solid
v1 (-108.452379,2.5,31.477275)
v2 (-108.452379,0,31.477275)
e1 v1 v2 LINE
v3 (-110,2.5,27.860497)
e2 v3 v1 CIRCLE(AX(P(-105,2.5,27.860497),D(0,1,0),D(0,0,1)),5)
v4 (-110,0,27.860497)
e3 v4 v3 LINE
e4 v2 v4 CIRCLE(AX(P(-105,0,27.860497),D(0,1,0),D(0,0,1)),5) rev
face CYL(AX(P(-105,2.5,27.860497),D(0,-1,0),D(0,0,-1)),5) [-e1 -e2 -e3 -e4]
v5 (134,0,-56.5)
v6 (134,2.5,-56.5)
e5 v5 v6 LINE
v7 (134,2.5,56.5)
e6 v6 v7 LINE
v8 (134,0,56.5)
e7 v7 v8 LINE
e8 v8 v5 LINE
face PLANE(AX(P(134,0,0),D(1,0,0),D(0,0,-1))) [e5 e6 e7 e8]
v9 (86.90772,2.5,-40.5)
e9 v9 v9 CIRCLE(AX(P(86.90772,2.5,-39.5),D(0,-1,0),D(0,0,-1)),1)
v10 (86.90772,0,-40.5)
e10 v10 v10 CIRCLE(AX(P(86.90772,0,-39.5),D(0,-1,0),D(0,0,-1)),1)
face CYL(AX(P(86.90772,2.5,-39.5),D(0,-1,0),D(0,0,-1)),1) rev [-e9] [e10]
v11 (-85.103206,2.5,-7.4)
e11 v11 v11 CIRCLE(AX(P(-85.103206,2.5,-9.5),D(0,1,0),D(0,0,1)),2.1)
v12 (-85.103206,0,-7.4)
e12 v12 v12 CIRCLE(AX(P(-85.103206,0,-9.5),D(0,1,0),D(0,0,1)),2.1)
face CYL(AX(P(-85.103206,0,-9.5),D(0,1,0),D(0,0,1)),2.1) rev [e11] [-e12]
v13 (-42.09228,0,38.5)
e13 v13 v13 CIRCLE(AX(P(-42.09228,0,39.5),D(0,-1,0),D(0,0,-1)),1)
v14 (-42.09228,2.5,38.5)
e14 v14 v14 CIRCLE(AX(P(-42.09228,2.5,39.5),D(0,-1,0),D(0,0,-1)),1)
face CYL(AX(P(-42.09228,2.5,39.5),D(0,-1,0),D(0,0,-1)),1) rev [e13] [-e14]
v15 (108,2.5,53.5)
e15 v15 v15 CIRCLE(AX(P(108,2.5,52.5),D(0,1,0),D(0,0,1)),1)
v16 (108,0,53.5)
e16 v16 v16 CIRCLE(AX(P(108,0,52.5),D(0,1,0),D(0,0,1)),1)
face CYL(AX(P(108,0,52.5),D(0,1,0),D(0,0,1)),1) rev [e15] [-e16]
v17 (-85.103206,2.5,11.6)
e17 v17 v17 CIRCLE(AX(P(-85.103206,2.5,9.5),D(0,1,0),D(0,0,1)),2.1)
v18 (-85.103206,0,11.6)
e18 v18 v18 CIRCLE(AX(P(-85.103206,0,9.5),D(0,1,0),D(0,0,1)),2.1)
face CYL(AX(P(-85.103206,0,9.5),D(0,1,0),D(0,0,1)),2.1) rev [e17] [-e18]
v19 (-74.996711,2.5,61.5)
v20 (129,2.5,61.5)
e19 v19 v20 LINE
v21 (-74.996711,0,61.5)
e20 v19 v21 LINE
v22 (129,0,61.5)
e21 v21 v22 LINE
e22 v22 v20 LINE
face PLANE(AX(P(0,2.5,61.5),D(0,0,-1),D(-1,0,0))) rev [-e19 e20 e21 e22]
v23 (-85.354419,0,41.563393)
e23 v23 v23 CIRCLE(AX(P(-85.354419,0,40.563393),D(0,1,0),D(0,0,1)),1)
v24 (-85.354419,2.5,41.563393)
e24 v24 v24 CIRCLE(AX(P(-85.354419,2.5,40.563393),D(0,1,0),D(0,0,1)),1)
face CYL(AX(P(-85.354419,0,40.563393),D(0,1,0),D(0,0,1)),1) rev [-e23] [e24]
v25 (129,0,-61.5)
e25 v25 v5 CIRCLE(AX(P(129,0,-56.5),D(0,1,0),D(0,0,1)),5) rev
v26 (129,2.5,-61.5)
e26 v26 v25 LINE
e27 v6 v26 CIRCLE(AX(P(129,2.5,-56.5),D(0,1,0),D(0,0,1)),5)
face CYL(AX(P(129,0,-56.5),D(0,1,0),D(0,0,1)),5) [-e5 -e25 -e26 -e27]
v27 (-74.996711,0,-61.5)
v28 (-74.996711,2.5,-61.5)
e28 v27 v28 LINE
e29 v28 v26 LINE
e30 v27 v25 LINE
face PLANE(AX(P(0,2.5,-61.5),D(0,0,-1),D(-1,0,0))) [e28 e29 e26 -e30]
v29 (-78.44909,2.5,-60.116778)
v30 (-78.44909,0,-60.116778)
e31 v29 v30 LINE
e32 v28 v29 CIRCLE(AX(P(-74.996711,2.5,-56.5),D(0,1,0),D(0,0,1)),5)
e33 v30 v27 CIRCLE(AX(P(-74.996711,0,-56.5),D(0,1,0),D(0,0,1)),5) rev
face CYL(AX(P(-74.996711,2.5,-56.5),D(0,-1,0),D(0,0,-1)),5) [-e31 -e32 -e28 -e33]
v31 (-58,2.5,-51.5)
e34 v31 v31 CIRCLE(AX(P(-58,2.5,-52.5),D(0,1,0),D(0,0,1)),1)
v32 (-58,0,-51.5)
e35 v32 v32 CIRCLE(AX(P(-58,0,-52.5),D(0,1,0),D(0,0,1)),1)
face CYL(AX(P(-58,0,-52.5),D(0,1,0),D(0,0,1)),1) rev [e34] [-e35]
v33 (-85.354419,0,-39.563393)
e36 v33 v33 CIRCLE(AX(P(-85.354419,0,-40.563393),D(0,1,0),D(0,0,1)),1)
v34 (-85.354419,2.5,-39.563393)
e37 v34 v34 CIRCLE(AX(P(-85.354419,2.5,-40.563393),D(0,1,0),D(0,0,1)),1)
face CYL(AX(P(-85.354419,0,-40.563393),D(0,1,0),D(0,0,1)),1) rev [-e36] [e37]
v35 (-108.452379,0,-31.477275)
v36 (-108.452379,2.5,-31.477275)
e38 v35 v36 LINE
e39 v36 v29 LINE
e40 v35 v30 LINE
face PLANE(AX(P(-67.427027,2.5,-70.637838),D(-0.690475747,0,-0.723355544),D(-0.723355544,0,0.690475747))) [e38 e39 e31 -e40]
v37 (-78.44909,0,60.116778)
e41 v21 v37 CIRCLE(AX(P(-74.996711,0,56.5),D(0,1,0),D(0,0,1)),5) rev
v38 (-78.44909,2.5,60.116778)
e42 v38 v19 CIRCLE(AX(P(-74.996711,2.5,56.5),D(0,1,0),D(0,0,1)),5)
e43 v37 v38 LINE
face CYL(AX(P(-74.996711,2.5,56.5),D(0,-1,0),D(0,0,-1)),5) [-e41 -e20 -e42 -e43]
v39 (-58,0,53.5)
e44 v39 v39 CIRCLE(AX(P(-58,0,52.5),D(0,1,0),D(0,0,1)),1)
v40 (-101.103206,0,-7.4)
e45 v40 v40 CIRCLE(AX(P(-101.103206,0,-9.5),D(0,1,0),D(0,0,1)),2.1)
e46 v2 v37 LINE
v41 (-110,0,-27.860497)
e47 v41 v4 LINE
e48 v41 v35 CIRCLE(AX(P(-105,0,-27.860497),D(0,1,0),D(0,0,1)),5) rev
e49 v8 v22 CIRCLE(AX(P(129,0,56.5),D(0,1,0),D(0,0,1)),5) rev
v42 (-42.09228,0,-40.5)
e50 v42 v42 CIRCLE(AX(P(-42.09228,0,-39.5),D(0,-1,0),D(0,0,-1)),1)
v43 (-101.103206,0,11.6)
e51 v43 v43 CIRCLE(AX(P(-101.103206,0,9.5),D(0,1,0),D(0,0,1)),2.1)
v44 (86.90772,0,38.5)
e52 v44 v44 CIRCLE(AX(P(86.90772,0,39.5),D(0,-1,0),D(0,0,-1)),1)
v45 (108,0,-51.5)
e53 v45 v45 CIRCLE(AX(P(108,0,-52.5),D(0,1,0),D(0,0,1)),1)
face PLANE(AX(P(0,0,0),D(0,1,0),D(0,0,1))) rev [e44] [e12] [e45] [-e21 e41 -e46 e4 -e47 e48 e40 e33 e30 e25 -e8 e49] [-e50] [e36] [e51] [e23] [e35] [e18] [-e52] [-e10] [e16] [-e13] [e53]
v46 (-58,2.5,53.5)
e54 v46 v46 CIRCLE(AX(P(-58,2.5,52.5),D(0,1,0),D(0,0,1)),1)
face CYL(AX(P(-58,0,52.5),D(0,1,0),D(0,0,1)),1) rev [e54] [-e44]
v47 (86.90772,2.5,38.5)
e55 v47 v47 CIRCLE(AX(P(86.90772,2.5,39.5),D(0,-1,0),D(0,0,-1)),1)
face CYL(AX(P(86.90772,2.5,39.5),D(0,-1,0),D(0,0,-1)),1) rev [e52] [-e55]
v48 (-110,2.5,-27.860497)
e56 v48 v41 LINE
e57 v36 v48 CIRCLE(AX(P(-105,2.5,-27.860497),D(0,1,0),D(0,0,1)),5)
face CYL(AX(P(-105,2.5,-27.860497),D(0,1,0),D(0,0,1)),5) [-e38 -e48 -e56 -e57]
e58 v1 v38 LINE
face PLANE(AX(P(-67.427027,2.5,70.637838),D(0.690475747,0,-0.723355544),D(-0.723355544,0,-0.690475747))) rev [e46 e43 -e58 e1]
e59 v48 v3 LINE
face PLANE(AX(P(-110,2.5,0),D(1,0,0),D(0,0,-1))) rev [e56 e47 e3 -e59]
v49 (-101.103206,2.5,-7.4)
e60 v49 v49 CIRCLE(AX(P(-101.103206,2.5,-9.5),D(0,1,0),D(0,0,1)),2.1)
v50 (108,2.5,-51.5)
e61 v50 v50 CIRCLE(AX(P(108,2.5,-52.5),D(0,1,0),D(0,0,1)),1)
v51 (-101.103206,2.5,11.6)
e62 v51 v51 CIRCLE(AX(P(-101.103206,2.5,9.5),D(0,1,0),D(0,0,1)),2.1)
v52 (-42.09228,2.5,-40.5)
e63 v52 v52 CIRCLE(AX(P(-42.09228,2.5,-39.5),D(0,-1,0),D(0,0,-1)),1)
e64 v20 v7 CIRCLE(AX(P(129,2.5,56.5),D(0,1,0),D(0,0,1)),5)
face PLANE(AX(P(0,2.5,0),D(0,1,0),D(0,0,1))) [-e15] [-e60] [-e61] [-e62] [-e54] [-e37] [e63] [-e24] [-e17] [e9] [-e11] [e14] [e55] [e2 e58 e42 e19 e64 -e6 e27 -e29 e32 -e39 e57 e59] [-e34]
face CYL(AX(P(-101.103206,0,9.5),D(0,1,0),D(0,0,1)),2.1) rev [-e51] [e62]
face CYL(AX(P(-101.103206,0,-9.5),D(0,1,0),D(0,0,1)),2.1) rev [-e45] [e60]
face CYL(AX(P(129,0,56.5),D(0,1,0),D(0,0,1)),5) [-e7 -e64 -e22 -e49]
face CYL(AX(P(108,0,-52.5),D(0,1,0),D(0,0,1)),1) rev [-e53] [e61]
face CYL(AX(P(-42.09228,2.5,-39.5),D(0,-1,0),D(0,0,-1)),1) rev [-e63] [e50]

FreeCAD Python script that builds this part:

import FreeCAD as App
import Part
import Sketcher
Q = App.Units.Quantity


def edges_at(feature, points):
    """Names of the edges that pass closest to the given points."""
    edges = feature.Shape.Edges
    near = lambda p: min(range(len(edges)), key=lambda i: edges[i].distToShape(Part.Vertex(*p))[0])
    return sorted({f"Edge{near(p) + 1}" for p in points})


def add_polygon(sketch, points):
    """Adds a closed chain of lines whose ends are joined by coincident constraints."""
    first, n = sketch.GeometryCount, len(points)
    for a, b in zip(points, points[1:] + points[:1]):
        sketch.addGeometry(Part.LineSegment(App.Vector(*a, 0), App.Vector(*b, 0)), False)
    for i in range(n):
        sketch.addConstraint(Sketcher.Constraint("Coincident", first + i, 2, first + (i + 1) % n, 1))

doc = App.newDocument("Part")
body = doc.addObject("PartDesign::Body", "Body")

# Sketch on XZ plane
sketch1 = body.newObject("Sketcher::SketchObject", "Sketch")
sketch1.AttachmentSupport = (doc.getObject("XZ_Plane"), [""])
sketch1.MapMode = "FlatFace"
add_polygon(sketch1, [(-77, -61.5), (-110, -30), (-110, 30), (-77, 61.5), (110, 61.5), (110, -61.5)])  # lines 0-5
sketch1.addConstraint(Sketcher.Constraint("Vertical", 1))
sketch1.addConstraint(Sketcher.Constraint("Horizontal", 3))
sketch1.addConstraint(Sketcher.Constraint("Vertical", 4))
sketch1.addConstraint(Sketcher.Constraint("Horizontal", 5))
sketch1.addConstraint(Sketcher.Constraint("Symmetric", 2, 2, 5, 2, -1))
sketch1.addConstraint(Sketcher.Constraint("Equal", 0, 2))
sketch1.addConstraint(Sketcher.Constraint("DistanceX", 3, 1, 3, 2, Q("187 mm")))
sketch1.addConstraint(Sketcher.Constraint("DistanceY", 1, 1, 1, 2, Q("60 mm")))
sketch1.addConstraint(Sketcher.Constraint("DistanceY", 4, 2, 4, 1, Q("123 mm")))
sketch1.addConstraint(Sketcher.Constraint("DistanceX", 0, 2, -1, 1, Q("110 mm")))
sketch1.addConstraint(Sketcher.Constraint("DistanceX", 2, 2, -1, 1, Q("77 mm")))
pad1 = body.newObject("PartDesign::Pad", "Pad")
pad1.Profile = sketch1
pad1.Length = 2.5
pad1.Reversed = True

# Sketch on XZ plane
sketch2 = body.newObject("Sketcher::SketchObject", "Sketch001")
sketch2.AttachmentSupport = (doc.getObject("XZ_Plane"), [""])
sketch2.MapMode = "FlatFace"
sketch2.AttachmentOffset = App.Placement(App.Vector(0, 0, -2.5), App.Rotation())
sketch2.addGeometry(Part.Circle(App.Vector(-101.103206, -9.5, 0), App.Vector(0, 0, 1), 2.1), False)
sketch2.addGeometry(Part.Circle(App.Vector(-101.103206, 9.5, 0), App.Vector(0, 0, 1), 2.1), False)
sketch2.addGeometry(Part.Circle(App.Vector(-85.103206, -9.5, 0), App.Vector(0, 0, 1), 2.1), False)
sketch2.addGeometry(Part.Circle(App.Vector(-85.103206, 9.5, 0), App.Vector(0, 0, 1), 2.1), False)
sketch2.addConstraint(Sketcher.Constraint("Equal", 0, 1))
sketch2.addConstraint(Sketcher.Constraint("Equal", 1, 2))
sketch2.addConstraint(Sketcher.Constraint("Equal", 2, 3))
sketch2.addConstraint(Sketcher.Constraint("Symmetric", 0, 3, 1, 3, -1))
sketch2.addConstraint(Sketcher.Constraint("Symmetric", 2, 3, 3, 3, -1))
sketch2.addConstraint(Sketcher.Constraint("Horizontal", 0, 3, 2, 3))
sketch2.addConstraint(Sketcher.Constraint("Diameter", 0, Q("4.2 mm")))
sketch2.addConstraint(Sketcher.Constraint("DistanceY", 0, 3, 1, 3, Q("19 mm")))
sketch2.addConstraint(Sketcher.Constraint("DistanceX", 0, 3, 2, 3, Q("16 mm")))
sketch2.addConstraint(Sketcher.Constraint("DistanceX", 0, 3, -1, 1, Q("101.103206 mm")))
pocket1 = body.newObject("PartDesign::Pocket", "Pocket")
pocket1.Profile = sketch2
pocket1.Type = "ThroughAll"
pocket1.Reversed = True

# Sketch on XZ plane
sketch3 = body.newObject("Sketcher::SketchObject", "Sketch002")
sketch3.AttachmentSupport = (doc.getObject("XZ_Plane"), [""])
sketch3.MapMode = "FlatFace"
sketch3.AttachmentOffset = App.Placement(App.Vector(0, 0, -2.5), App.Rotation())
sketch3.addGeometry(Part.Circle(App.Vector(-58, -52.5, 0), App.Vector(0, 0, 1), 1), False)
sketch3.addGeometry(Part.Circle(App.Vector(-58, 52.5, 0), App.Vector(0, 0, 1), 1), False)
sketch3.addGeometry(Part.Circle(App.Vector(108, 52.5, 0), App.Vector(0, 0, 1), 1), False)
sketch3.addGeometry(Part.Circle(App.Vector(108, -52.5, 0), App.Vector(0, 0, 1), 1), False)
sketch3.addConstraint(Sketcher.Constraint("Equal", 0, 1))
sketch3.addConstraint(Sketcher.Constraint("Equal", 1, 2))
sketch3.addConstraint(Sketcher.Constraint("Equal", 2, 3))
sketch3.addConstraint(Sketcher.Constraint("Symmetric", 0, 3, 1, 3, -1))
sketch3.addConstraint(Sketcher.Constraint("Symmetric", 2, 3, 3, 3, -1))
sketch3.addConstraint(Sketcher.Constraint("Horizontal", 1, 3, 2, 3))
sketch3.addConstraint(Sketcher.Constraint("Diameter", 0, Q("2 mm")))
sketch3.addConstraint(Sketcher.Constraint("DistanceX", 0, 3, -1, 1, Q("58 mm")))
sketch3.addConstraint(Sketcher.Constraint("DistanceX", -1, 1, 2, 3, Q("108 mm")))
sketch3.addConstraint(Sketcher.Constraint("DistanceY", 0, 3, 1, 3, Q("105 mm")))
pocket2 = body.newObject("PartDesign::Pocket", "Pocket001")
pocket2.Profile = sketch3
pocket2.Type = "ThroughAll"
pocket2.Reversed = True

# Sketch on XZ plane
sketch4 = body.newObject("Sketcher::SketchObject", "Sketch003")
sketch4.AttachmentSupport = (doc.getObject("XZ_Plane"), [""])
sketch4.MapMode = "FlatFace"
sketch4.addGeometry(Part.Circle(App.Vector(-42.09228, 39.5, 0), App.Vector(0, 0, 1), 1), False)
sketch4.addGeometry(Part.Circle(App.Vector(-42.09228, -39.5, 0), App.Vector(0, 0, 1), 1), False)
sketch4.addGeometry(Part.Circle(App.Vector(86.90772, 39.5, 0), App.Vector(0, 0, 1), 1), False)
sketch4.addGeometry(Part.Circle(App.Vector(86.90772, -39.5, 0), App.Vector(0, 0, 1), 1), False)
sketch4.addConstraint(Sketcher.Constraint("Equal", 0, 1))
sketch4.addConstraint(Sketcher.Constraint("Equal", 1, 2))
sketch4.addConstraint(Sketcher.Constraint("Equal", 2, 3))
sketch4.addConstraint(Sketcher.Constraint("Symmetric", 0, 3, 1, 3, -1))
sketch4.addConstraint(Sketcher.Constraint("Symmetric", 2, 3, 3, 3, -1))
sketch4.addConstraint(Sketcher.Constraint("Horizontal", 0, 3, 2, 3))
sketch4.addConstraint(Sketcher.Constraint("Diameter", 0, Q("2 mm")))
sketch4.addConstraint(Sketcher.Constraint("DistanceY", 1, 3, 0, 3, Q("79 mm")))
sketch4.addConstraint(Sketcher.Constraint("DistanceX", 0, 3, 2, 3, Q("129 mm")))
sketch4.addConstraint(Sketcher.Constraint("DistanceX", 0, 3, -1, 1, Q("42.09228 mm")))
pocket3 = body.newObject("PartDesign::Pocket", "Pocket002")
pocket3.Profile = sketch4
pocket3.Type = "ThroughAll"

# Sketch on YZ plane
sketch5 = body.newObject("Sketcher::SketchObject", "Sketch004")
sketch5.AttachmentSupport = (doc.getObject("YZ_Plane"), [""])
sketch5.MapMode = "FlatFace"
sketch5.AttachmentOffset = App.Placement(App.Vector(0, 0, 110), App.Rotation())
add_polygon(sketch5, [(2.5, 61.5), (0, 61.5), (0, -61.5), (2.5, -61.5)])  # lines 0-3
sketch5.addConstraint(Sketcher.Constraint("Horizontal", 0))
sketch5.addConstraint(Sketcher.Constraint("Vertical", 1))
sketch5.addConstraint(Sketcher.Constraint("Horizontal", 2))
sketch5.addConstraint(Sketcher.Constraint("Vertical", 3))
sketch5.addConstraint(Sketcher.Constraint("Symmetric", 0, 2, 1, 2, -1, 1))
sketch5.addConstraint(Sketcher.Constraint("DistanceY", 1, 2, 1, 1, Q("123 mm")))
sketch5.addConstraint(Sketcher.Constraint("DistanceX", 0, 2, 0, 1, Q("2.5 mm")))
pad2 = body.newObject("PartDesign::Pad", "Pad001")
pad2.Profile = sketch5
pad2.Length = 24
doc.recompute()

fillet = body.newObject("PartDesign::Fillet", "Fillet")
fillet.Base = (pad2, edges_at(pad2, [
    (-110, 1.25, -30),
    (-77, 1.25, -61.5),
    (-77, 1.25, 61.5),
    (-110, 1.25, 30),
    (134, 1.25, 61.5),
    (134, 1.25, -61.5),
]))
fillet.Radius = 5

# Sketch on XZ plane
sketch6 = body.newObject("Sketcher::SketchObject", "Sketch005")
sketch6.AttachmentSupport = (doc.getObject("XZ_Plane"), [""])
sketch6.MapMode = "FlatFace"
sketch6.AttachmentOffset = App.Placement(App.Vector(0, 0, -2.5), App.Rotation())
sketch6.addGeometry(Part.Circle(App.Vector(-85.354419, -40.563393, 0), App.Vector(0, 0, 1), 1), False)
sketch6.addGeometry(Part.Circle(App.Vector(-85.354419, 40.563393, 0), App.Vector(0, 0, 1), 1), False)
sketch6.addConstraint(Sketcher.Constraint("Equal", 0, 1))
sketch6.addConstraint(Sketcher.Constraint("Symmetric", 0, 3, 1, 3, -1))
sketch6.addConstraint(Sketcher.Constraint("Diameter", 0, Q("2 mm")))
sketch6.addConstraint(Sketcher.Constraint("DistanceX", 0, 3, -1, 1, Q("85.354419 mm")))
sketch6.addConstraint(Sketcher.Constraint("DistanceY", 0, 3, -1, 1, Q("40.563393 mm")))
pocket4 = body.newObject("PartDesign::Pocket", "Pocket003")
pocket4.Profile = sketch6
pocket4.Type = "ThroughAll"
pocket4.Reversed = True

doc.recompute()
